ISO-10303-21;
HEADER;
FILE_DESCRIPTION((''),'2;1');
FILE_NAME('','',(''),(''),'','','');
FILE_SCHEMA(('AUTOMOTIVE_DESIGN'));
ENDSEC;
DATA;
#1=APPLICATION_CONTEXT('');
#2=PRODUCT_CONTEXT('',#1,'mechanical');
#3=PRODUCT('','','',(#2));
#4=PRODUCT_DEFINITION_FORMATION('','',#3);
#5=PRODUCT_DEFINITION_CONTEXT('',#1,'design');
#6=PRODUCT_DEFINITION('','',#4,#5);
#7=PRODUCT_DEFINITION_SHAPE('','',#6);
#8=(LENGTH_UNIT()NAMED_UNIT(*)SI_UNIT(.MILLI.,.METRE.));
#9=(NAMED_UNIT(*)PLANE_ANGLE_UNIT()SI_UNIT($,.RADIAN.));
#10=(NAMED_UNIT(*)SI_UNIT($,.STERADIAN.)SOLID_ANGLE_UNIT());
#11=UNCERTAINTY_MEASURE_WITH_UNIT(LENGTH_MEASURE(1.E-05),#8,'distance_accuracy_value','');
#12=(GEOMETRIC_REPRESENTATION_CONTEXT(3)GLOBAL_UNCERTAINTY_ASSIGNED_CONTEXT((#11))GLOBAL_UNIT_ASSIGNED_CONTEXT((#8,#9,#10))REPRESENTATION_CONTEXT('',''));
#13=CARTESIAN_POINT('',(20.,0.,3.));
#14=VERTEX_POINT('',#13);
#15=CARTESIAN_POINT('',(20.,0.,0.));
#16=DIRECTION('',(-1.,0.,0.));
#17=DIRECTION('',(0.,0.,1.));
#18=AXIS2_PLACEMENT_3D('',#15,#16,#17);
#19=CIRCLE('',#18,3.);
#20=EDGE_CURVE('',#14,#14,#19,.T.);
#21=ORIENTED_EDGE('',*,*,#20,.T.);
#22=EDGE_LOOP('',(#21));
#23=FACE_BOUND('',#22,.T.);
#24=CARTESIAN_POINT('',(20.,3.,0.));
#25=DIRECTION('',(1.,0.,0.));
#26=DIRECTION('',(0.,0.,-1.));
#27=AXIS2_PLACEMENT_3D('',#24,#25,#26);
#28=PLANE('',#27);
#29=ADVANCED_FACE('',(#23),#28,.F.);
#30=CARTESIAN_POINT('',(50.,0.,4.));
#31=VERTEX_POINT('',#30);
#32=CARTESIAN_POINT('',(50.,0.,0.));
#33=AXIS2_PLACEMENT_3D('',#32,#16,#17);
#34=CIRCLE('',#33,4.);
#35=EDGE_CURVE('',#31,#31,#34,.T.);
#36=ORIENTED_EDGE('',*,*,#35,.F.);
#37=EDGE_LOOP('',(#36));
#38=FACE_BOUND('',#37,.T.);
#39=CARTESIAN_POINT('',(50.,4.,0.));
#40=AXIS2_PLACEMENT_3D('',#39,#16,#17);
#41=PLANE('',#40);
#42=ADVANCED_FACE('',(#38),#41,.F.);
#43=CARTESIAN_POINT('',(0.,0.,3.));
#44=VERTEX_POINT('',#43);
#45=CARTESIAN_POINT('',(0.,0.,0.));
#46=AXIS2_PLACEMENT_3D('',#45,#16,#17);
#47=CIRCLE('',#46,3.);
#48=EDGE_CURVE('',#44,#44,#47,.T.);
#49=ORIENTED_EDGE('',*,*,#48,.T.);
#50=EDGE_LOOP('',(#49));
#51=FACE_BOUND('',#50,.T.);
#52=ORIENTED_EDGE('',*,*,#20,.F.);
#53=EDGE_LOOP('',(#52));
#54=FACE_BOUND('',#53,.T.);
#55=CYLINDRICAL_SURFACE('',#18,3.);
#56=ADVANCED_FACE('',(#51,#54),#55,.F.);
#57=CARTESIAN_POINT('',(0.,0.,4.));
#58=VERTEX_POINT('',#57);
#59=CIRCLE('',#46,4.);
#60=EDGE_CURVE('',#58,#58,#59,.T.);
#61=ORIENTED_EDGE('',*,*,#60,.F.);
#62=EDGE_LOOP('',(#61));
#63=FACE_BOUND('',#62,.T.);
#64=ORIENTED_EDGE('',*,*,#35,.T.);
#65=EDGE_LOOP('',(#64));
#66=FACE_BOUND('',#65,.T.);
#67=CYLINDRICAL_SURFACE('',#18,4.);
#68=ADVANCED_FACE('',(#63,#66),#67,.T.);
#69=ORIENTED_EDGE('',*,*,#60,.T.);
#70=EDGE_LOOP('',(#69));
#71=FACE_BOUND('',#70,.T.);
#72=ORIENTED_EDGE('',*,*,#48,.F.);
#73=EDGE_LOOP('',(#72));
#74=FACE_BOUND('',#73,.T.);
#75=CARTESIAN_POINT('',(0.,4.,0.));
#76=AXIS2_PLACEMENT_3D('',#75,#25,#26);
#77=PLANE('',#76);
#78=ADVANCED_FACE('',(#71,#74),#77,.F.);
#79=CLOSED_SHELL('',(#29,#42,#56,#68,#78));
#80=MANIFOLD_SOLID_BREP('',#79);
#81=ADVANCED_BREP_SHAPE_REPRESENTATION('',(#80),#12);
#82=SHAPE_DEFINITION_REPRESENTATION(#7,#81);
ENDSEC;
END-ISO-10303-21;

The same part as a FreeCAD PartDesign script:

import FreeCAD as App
import Part
import Sketcher
from FreeCAD import Vector

doc = App.newDocument("Part")
body = doc.addObject("PartDesign::Body", "Body")

# Sketch on XY plane
sketch1 = body.newObject("Sketcher::SketchObject", "Sketch")
sketch1.AttachmentSupport = (doc.getObject("XY_Plane"), [""])
sketch1.MapMode = "FlatFace"
sketch1.addGeometry(Part.LineSegment(Vector(0, 4, 0), Vector(0, 3, 0)), False)
sketch1.addGeometry(Part.LineSegment(Vector(0, 3, 0), Vector(20, 3, 0)), False)
sketch1.addGeometry(Part.LineSegment(Vector(20, 3, 0), Vector(20, 0, 0)), False)
sketch1.addGeometry(Part.LineSegment(Vector(20, 0, 0), Vector(50, 0, 0)), False)
sketch1.addGeometry(Part.LineSegment(Vector(50, 0, 0), Vector(50, 4, 0)), False)
sketch1.addGeometry(Part.LineSegment(Vector(50, 4, 0), Vector(0, 4, 0)), False)
sketch1.addConstraint(Sketcher.Constraint("Coincident", 0, 2, 1, 1))
sketch1.addConstraint(Sketcher.Constraint("Coincident", 1, 2, 2, 1))
sketch1.addConstraint(Sketcher.Constraint("Coincident", 2, 2, 3, 1))
sketch1.addConstraint(Sketcher.Constraint("Coincident", 3, 2, 4, 1))
sketch1.addConstraint(Sketcher.Constraint("Coincident", 4, 2, 5, 1))
sketch1.addConstraint(Sketcher.Constraint("Coincident", 5, 2, 0, 1))
sketch1.addConstraint(Sketcher.Constraint("Vertical", 0))
sketch1.addConstraint(Sketcher.Constraint("Horizontal", 1))
sketch1.addConstraint(Sketcher.Constraint("Vertical", 2))
sketch1.addConstraint(Sketcher.Constraint("Horizontal", 3))
sketch1.addConstraint(Sketcher.Constraint("Vertical", 4))
sketch1.addConstraint(Sketcher.Constraint("Horizontal", 5))
sketch1.addConstraint(Sketcher.Constraint("PointOnObject", 0, 2, -2))
sketch1.addConstraint(Sketcher.Constraint("PointOnObject", 2, 2, -1))
sketch1.addConstraint(Sketcher.Constraint("DistanceX", 1, 1, 1, 2, 20.0))
sketch1.addConstraint(Sketcher.Constraint("DistanceX", 3, 1, 3, 2, 30.0))
sketch1.addConstraint(Sketcher.Constraint("DistanceY", 0, 2, 0, 1, 1.0))
sketch1.addConstraint(Sketcher.Constraint("DistanceY", 2, 2, 2, 1, 3.0))
revolution = body.newObject("PartDesign::Revolution", "Revolution")
revolution.Profile = sketch1
revolution.ReferenceAxis = (sketch1, ["H_Axis"])
revolution.Angle = 360

doc.recompute()
